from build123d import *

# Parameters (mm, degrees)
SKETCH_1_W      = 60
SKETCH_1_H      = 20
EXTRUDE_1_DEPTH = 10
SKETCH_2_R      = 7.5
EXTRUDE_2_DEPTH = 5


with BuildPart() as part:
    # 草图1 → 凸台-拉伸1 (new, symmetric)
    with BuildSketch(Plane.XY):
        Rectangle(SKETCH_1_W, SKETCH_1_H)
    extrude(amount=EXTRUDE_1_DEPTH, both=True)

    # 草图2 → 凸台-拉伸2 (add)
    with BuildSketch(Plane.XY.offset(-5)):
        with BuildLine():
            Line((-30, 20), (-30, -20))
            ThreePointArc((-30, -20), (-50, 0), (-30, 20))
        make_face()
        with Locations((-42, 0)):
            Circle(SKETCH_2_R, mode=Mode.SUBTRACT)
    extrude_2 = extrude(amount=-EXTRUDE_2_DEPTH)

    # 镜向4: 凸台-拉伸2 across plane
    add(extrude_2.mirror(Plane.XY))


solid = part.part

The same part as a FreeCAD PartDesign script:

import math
import FreeCAD as App
import Part
import Sketcher


def add_polygon(sketch, points):
    """Adds a closed chain of lines whose ends are joined by coincident constraints."""
    first, n = sketch.GeometryCount, len(points)
    for a, b in zip(points, points[1:] + points[:1]):
        sketch.addGeometry(Part.LineSegment(App.Vector(*a, 0), App.Vector(*b, 0)), False)
    for i in range(n):
        sketch.addConstraint(Sketcher.Constraint("Coincident", first + i, 2, first + (i + 1) % n, 1))

doc = App.newDocument("Part")
body = doc.addObject("PartDesign::Body", "Body")

# Sketch on XY plane
sketch1 = body.newObject("Sketcher::SketchObject", "Sketch")
sketch1.AttachmentSupport = (doc.getObject("XY_Plane"), [""])
sketch1.MapMode = "FlatFace"
add_polygon(sketch1, [(-30, 10), (-30, -10), (30, -10), (30, 10)])  # lines 0-3
sketch1.addConstraint([
    Sketcher.Constraint("Vertical", 0),
    Sketcher.Constraint("Horizontal", 1),
    Sketcher.Constraint("Vertical", 2),
    Sketcher.Constraint("Horizontal", 3),
    Sketcher.Constraint("Symmetric", 0, 2, 2, 2, -1, 1),
    Sketcher.Constraint("DistanceX", 1, 1, 1, 2, 60.0),
    Sketcher.Constraint("DistanceY", 0, 2, 0, 1, 20.0),
])
pad1 = body.newObject("PartDesign::Pad", "Pad")
pad1.Profile = sketch1
pad1.Length = 20
pad1.Midplane = True

# Sketch on XY plane
sketch2 = body.newObject("Sketcher::SketchObject", "Sketch001")
sketch2.AttachmentSupport = (doc.getObject("XY_Plane"), [""])
sketch2.MapMode = "FlatFace"
sketch2.AttachmentOffset = App.Placement(App.Vector(0, 0, -5), App.Rotation())
sketch2.addGeometry([
    Part.LineSegment(App.Vector(-30, -20, 0), App.Vector(-30, 20, 0)),
    Part.ArcOfCircle(Part.Circle(App.Vector(-30, 0, 0), App.Vector(0, 0, 1), 20), math.radians(90), math.radians(270)),
    Part.Circle(App.Vector(-42, 0, 0), App.Vector(0, 0, 1), 8),
], False)
sketch2.addConstraint([
    Sketcher.Constraint("Coincident", 0, 1, 1, 2),
    Sketcher.Constraint("Coincident", 1, 1, 0, 2),
    Sketcher.Constraint("Vertical", 0),
    Sketcher.Constraint("PointOnObject", 1, 3, -1),
    Sketcher.Constraint("PointOnObject", 2, 3, -1),
    Sketcher.Constraint("Vertical", 1, 3, 0, 1),
    Sketcher.Constraint("Diameter", 2, 15.0),
    Sketcher.Constraint("Radius", 1, 20.0),
    Sketcher.Constraint("DistanceX", 1, 3, -1, 1, 30.0),
    Sketcher.Constraint("DistanceX", 2, 3, -1, 1, 42.0),
])
pad2 = body.newObject("PartDesign::Pad", "Pad001")
pad2.Profile = sketch2
pad2.Length = 5
pad2.Reversed = True
doc.recompute()

mirrored = body.newObject("PartDesign::Mirrored", "Mirrored")
mirrored.Originals = [pad2]
mirrored.MirrorPlane = (doc.getObject("XY_Plane"), [""])
body.Tip = mirrored

doc.recompute()
